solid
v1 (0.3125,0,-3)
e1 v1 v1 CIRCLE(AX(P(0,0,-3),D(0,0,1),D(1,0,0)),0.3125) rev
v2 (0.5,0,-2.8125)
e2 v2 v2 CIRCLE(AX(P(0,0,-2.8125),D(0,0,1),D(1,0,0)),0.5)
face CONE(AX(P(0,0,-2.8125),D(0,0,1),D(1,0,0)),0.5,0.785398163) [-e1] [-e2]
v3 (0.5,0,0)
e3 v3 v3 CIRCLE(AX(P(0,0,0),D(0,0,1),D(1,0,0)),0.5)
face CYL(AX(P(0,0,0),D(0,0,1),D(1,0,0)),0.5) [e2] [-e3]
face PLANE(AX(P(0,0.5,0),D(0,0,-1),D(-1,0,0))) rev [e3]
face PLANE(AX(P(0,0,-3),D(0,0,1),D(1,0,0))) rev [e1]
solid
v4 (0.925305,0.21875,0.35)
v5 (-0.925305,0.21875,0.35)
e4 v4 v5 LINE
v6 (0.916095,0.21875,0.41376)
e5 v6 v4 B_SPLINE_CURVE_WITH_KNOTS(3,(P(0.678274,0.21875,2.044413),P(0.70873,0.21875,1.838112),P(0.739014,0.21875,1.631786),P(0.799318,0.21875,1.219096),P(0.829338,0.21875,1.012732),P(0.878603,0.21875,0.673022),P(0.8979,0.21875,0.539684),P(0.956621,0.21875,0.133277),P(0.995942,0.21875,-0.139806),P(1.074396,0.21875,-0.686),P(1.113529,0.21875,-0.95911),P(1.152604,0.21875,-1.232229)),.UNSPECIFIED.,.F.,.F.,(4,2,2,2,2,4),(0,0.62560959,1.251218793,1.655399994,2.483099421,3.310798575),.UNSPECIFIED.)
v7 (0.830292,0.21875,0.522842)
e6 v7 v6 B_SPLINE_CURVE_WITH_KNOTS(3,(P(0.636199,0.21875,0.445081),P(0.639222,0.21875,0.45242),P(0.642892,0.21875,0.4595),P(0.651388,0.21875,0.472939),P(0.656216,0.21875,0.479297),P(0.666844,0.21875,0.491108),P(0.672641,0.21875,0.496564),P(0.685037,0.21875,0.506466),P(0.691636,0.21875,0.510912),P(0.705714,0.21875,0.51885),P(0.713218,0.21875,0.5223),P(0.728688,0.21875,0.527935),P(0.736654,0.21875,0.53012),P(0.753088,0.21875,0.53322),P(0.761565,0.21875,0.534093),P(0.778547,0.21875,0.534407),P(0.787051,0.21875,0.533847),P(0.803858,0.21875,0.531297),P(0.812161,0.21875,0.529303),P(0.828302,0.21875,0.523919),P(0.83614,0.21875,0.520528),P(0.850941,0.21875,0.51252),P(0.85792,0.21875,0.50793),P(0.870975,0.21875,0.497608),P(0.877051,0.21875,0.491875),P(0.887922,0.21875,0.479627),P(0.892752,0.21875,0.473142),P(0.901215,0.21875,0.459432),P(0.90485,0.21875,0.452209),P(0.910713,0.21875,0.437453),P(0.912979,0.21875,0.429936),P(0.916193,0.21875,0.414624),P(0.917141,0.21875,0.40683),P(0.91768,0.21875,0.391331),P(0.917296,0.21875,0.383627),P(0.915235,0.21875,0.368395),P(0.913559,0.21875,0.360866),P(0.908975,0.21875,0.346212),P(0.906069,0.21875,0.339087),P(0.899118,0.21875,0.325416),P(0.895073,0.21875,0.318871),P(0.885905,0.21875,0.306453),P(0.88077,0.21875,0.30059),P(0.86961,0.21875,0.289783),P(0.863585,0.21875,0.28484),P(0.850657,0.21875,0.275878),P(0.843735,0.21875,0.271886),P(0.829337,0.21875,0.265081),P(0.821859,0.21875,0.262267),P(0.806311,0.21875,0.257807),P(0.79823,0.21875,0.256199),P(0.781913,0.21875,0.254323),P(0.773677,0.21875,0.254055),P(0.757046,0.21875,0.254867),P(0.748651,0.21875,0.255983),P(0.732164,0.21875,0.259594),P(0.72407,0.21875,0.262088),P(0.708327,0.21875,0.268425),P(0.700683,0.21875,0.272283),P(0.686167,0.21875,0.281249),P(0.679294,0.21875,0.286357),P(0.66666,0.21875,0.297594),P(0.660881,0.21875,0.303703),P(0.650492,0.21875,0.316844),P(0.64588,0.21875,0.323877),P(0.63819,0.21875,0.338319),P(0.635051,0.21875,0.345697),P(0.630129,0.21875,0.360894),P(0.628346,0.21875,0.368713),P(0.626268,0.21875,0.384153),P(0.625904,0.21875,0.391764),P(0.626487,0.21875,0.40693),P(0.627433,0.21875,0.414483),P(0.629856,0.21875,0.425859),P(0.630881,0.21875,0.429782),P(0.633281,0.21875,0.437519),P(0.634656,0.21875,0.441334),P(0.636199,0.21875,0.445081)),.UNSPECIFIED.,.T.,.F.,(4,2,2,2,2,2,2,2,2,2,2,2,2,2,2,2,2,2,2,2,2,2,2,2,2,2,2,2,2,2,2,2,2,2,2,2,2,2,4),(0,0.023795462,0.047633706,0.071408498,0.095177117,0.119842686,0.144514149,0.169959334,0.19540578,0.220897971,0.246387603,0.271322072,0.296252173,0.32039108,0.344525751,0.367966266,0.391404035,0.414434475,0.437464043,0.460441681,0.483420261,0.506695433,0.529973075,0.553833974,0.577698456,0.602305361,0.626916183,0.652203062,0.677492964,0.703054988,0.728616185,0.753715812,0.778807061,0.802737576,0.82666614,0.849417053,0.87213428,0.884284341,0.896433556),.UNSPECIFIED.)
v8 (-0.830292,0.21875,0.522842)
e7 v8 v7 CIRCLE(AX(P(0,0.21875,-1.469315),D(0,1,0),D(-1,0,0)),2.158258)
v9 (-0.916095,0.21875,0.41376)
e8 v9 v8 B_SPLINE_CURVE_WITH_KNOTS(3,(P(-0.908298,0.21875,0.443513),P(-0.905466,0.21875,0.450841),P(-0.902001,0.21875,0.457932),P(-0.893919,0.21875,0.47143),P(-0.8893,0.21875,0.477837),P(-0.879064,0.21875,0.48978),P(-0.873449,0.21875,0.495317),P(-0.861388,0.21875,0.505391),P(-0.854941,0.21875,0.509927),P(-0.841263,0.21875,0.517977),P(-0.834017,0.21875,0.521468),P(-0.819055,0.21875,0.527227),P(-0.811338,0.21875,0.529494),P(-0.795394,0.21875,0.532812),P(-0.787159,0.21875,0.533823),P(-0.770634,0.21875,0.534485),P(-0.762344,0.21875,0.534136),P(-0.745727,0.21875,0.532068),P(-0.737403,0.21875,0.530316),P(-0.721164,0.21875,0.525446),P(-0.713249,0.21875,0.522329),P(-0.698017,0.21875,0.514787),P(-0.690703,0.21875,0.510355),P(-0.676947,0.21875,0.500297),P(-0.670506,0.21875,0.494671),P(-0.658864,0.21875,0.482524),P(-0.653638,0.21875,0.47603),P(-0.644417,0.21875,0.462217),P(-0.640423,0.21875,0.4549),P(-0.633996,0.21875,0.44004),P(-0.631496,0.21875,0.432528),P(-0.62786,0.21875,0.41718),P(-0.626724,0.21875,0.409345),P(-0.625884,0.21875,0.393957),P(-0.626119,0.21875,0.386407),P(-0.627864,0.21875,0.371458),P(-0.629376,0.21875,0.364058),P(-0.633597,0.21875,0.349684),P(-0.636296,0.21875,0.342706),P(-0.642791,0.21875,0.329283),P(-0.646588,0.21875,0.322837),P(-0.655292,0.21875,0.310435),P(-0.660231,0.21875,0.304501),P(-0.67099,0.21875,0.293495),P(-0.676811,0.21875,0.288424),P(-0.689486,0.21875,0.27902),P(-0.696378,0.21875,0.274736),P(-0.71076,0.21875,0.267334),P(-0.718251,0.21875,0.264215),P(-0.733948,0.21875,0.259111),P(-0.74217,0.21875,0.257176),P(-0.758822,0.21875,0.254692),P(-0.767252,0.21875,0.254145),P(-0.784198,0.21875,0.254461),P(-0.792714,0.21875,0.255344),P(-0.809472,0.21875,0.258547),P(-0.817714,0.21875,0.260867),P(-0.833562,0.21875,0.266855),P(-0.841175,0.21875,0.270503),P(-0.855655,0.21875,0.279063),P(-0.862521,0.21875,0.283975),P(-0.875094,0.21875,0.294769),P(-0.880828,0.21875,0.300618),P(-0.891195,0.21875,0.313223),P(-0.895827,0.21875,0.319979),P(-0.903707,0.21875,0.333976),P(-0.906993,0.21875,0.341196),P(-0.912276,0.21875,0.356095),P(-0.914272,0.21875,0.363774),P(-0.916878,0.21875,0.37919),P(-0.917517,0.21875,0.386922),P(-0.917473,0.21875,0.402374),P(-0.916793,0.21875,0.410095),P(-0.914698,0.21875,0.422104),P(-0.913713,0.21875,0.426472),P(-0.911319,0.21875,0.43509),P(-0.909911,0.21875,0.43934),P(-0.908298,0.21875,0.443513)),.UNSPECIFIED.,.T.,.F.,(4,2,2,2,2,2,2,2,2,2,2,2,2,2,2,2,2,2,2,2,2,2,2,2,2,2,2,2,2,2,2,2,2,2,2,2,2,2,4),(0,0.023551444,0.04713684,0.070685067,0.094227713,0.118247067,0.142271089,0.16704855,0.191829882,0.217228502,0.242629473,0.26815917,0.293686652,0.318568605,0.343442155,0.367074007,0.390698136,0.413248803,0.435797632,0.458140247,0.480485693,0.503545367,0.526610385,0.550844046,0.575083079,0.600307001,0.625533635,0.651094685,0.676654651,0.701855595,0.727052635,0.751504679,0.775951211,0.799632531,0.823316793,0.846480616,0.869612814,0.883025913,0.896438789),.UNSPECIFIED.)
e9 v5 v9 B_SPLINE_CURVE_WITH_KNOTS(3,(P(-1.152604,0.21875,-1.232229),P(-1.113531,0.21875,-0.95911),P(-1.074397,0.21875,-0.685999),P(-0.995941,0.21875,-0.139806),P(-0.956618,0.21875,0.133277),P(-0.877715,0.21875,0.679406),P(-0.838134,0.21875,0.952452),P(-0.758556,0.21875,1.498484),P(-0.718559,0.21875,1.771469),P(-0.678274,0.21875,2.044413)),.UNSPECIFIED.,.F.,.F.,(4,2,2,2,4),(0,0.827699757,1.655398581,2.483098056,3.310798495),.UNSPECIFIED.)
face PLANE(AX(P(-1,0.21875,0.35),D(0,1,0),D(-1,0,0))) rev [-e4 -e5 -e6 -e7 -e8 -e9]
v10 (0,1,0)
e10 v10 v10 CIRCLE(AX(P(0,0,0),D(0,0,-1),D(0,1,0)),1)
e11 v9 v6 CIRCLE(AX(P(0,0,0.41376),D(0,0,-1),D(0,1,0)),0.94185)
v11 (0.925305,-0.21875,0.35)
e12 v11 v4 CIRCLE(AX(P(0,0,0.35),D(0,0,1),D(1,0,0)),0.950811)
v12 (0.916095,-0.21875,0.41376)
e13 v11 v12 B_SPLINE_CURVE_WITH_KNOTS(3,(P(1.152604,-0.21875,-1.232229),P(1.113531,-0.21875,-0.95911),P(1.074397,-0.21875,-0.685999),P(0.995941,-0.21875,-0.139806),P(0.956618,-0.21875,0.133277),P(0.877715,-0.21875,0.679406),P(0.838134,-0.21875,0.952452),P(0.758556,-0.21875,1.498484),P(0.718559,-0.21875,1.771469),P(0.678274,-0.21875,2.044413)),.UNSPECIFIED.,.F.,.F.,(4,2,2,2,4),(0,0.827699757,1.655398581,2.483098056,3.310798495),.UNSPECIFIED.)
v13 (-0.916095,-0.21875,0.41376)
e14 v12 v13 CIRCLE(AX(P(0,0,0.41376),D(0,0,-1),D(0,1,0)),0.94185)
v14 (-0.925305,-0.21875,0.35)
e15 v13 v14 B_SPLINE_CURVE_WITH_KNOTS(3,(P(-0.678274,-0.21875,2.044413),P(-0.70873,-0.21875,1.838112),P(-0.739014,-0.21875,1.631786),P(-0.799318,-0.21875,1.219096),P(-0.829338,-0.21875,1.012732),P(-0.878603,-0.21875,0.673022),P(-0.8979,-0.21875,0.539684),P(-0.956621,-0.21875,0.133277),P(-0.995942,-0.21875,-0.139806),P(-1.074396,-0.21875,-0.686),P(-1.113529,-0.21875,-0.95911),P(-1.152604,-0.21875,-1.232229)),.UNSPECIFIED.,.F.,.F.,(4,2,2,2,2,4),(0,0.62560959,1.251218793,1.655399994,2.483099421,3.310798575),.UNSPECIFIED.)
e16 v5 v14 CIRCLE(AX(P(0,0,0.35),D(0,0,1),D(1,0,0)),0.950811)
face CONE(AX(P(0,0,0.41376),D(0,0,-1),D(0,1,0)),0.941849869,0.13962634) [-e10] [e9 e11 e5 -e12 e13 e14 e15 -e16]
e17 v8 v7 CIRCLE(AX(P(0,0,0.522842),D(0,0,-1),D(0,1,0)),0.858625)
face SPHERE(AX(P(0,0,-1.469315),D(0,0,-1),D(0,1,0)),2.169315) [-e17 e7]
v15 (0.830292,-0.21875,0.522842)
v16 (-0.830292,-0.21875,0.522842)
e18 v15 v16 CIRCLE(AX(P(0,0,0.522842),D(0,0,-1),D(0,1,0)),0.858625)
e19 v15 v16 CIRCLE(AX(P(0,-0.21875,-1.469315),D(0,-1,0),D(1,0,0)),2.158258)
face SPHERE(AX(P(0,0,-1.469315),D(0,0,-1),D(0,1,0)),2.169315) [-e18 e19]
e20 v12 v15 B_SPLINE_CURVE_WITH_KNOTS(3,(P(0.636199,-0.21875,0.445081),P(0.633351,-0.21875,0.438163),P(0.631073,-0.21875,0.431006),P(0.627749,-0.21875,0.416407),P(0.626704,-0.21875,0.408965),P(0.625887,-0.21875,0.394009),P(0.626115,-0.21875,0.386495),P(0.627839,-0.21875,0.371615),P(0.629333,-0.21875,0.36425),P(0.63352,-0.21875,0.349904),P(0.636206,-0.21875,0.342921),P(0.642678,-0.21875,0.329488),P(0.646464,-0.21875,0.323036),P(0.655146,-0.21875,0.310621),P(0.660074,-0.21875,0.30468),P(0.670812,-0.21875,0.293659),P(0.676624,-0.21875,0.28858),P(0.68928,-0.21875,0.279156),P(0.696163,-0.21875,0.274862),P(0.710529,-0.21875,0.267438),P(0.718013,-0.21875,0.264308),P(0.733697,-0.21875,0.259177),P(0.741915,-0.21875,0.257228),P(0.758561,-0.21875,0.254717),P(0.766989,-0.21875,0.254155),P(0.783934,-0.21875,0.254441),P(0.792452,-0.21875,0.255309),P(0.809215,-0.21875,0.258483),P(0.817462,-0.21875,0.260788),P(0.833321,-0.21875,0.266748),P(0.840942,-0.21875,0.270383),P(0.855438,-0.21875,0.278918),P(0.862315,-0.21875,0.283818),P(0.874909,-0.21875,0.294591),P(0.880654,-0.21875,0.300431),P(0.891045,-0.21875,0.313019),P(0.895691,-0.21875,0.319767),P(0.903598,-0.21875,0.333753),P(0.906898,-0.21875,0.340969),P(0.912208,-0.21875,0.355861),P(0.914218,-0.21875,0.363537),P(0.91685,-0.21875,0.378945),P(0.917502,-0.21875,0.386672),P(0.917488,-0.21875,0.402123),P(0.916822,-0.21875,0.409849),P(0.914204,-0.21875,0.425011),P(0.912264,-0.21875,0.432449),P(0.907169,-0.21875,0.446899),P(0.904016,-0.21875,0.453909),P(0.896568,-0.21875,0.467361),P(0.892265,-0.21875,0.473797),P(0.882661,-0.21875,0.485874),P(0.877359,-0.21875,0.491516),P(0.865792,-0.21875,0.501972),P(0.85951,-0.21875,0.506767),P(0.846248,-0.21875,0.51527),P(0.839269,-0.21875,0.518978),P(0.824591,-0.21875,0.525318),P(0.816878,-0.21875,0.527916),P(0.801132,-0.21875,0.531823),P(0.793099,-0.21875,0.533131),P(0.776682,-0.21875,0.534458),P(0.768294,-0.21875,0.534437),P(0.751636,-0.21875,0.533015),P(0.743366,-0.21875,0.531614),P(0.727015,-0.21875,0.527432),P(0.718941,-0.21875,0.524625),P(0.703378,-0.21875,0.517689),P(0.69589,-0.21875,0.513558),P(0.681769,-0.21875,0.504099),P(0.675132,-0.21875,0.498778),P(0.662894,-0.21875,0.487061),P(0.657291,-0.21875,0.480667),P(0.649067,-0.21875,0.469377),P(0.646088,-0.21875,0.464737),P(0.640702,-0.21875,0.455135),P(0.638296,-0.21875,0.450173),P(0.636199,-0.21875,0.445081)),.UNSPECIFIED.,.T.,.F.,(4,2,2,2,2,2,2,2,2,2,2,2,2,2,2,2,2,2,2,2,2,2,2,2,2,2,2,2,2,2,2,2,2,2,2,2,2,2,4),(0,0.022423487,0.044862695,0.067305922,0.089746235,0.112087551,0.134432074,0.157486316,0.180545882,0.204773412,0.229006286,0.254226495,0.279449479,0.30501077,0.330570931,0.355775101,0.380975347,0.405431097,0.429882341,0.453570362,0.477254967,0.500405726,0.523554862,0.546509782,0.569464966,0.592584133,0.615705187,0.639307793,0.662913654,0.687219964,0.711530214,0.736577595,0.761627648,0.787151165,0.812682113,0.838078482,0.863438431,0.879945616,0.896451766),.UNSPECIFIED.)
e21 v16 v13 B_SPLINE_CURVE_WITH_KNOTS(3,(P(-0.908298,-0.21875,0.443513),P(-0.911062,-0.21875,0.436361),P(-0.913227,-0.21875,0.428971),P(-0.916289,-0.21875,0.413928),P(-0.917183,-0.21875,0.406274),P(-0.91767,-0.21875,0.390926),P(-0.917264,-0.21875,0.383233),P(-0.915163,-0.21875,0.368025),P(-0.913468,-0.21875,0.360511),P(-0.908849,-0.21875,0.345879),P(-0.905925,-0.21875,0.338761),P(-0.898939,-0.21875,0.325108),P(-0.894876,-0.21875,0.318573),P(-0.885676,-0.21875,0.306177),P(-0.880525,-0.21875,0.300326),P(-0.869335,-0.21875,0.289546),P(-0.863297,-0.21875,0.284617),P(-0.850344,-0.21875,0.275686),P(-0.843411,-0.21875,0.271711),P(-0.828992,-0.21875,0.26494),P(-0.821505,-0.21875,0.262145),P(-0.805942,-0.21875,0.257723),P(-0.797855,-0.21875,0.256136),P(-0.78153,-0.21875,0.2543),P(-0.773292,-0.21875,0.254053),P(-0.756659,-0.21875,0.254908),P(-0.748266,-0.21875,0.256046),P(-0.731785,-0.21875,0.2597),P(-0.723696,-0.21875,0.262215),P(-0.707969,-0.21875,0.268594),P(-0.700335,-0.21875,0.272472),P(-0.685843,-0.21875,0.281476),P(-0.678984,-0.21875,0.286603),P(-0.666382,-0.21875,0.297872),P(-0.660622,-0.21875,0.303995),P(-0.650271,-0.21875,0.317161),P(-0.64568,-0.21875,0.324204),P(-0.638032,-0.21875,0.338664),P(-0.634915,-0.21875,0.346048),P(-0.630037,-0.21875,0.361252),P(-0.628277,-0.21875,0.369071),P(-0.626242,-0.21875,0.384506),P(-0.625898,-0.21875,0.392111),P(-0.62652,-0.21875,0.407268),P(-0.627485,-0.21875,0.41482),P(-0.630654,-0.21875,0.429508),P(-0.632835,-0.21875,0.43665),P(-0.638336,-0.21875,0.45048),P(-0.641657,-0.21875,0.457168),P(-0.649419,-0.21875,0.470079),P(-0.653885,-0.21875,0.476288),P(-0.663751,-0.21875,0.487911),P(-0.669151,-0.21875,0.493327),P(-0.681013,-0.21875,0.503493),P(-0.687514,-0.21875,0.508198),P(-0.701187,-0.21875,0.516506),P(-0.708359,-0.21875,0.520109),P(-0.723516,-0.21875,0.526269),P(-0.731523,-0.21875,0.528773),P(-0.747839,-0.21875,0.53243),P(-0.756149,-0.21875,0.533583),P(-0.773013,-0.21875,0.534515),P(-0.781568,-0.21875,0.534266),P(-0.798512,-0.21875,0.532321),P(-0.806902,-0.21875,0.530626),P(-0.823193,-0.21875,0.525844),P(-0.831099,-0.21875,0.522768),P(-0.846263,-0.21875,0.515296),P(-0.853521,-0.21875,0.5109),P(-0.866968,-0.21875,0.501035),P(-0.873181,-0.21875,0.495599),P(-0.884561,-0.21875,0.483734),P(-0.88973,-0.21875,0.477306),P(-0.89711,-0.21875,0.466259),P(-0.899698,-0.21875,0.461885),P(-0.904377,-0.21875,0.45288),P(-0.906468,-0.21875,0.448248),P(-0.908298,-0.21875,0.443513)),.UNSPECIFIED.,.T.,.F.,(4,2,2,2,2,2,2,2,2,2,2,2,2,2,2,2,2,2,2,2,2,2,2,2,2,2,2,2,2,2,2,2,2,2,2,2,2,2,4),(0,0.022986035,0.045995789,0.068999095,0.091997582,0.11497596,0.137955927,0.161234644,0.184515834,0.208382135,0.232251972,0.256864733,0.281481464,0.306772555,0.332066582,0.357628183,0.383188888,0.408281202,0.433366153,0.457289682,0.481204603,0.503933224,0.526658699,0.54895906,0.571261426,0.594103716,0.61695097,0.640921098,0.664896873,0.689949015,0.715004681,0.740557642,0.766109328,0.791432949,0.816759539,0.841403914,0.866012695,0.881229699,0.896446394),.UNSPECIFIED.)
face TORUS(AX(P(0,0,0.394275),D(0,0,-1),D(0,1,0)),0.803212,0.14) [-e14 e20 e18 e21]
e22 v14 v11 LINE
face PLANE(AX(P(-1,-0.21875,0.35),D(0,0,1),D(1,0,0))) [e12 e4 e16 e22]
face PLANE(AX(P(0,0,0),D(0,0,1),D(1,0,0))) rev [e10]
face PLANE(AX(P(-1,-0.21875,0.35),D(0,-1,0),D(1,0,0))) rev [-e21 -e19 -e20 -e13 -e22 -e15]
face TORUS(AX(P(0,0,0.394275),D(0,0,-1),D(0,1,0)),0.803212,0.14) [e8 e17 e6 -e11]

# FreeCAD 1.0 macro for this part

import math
import FreeCAD as App
import Part
import Sketcher
Q = App.Units.Quantity


def edges_at(feature, points):
    """Names of the edges that pass closest to the given points."""
    edges = feature.Shape.Edges
    near = lambda p: min(range(len(edges)), key=lambda i: edges[i].distToShape(Part.Vertex(*p))[0])
    return sorted({f"Edge{near(p) + 1}" for p in points})

doc = App.newDocument("Part")
params = doc.addObject("Spreadsheet::Sheet", "Params")
for row, (alias, value) in enumerate([
    ("sketch1_diameter", "2 mm"),
    ("pad1_length", "0.7 mm"),
    ("sketch2_radius", "0.14 mm"),
    ("sketch2_width", "1.04 mm"),
    ("groove_angle", "360 deg"),
    ("sketch3_width", "2 mm"),
    ("pocket1_length", "0.35 mm"),
    ("sketch4_height", "3 mm"),
    ("sketch4_width", "0.5 mm"),
    ("revolution_angle", "360 deg"),
    ("chamfer_size", "0.1875 mm"),
], start=1):
    params.set(f"A{row}", alias)
    params.set(f"B{row}", "=" + value)
    params.setAlias(f"B{row}", alias)

body = doc.addObject("PartDesign::Body", "Body")

# Sketch on XY plane
sketch1 = doc.addObject("Sketcher::SketchObject", "Sketch")
body.addObject(sketch1)
sketch1.AttachmentSupport = (doc.XY_Plane, [""])
sketch1.MapMode = "FlatFace"
sketch1.addGeometry(Part.Circle(App.Vector(0, 0, 0), App.Vector(0, 0, 1), 1), False)
sketch1.addConstraint([
    Sketcher.Constraint("Coincident", 0, 3, -1, 1),
    Sketcher.Constraint("Diameter", 0, 2.0),
])
sketch1.setExpression("Constraints[1]", "Params.sketch1_diameter")
pad1 = doc.addObject("PartDesign::Pad", "Pad")
body.addObject(pad1)
pad1.Profile = sketch1
pad1.setExpression("Length", "Params.pad1_length")

# Sketch on YZ plane
sketch2 = doc.addObject("Sketcher::SketchObject", "Sketch001")
body.addObject(sketch2)
sketch2.AttachmentSupport = (doc.YZ_Plane, [""])
sketch2.MapMode = "FlatFace"
sketch2.addGeometry([
    Part.LineSegment(App.Vector(1.04, 0, 0), App.Vector(1.04, 0.954, 0)),  # 0
    Part.LineSegment(App.Vector(1.04, 0.954, 0), App.Vector(0, 0.954, 0)),  # 1
    Part.LineSegment(App.Vector(0, 0.954, 0), App.Vector(0, 0.7, 0)),  # 2
    Part.ArcOfCircle(Part.Circle(App.Vector(0, -1.469, 0), App.Vector(0, 0, 1), 2.169), math.radians(67), math.radians(90)),  # 3
    Part.ArcOfCircle(Part.Circle(App.Vector(0.803, 0.394, 0), App.Vector(0, 0, 1), 0.14), math.radians(8), math.radians(67)),  # 4
    Part.LineSegment(App.Vector(0.942, 0.414, 0), App.Vector(1, 0, 0)),  # 5
    Part.LineSegment(App.Vector(1, 0, 0), App.Vector(1.04, 0, 0)),  # 6
], False)
sketch2.addConstraint([
    Sketcher.Constraint("Coincident", 0, 2, 1, 1),
    Sketcher.Constraint("Coincident", 1, 2, 2, 1),
    Sketcher.Constraint("Coincident", 2, 2, 3, 2),
    Sketcher.Constraint("Tangent", 3, 1, 4, 2),
    Sketcher.Constraint("Tangent", 4, 1, 5, 1),
    Sketcher.Constraint("Coincident", 5, 2, 6, 1),
    Sketcher.Constraint("Coincident", 6, 2, 0, 1),
    Sketcher.Constraint("Vertical", 0),
    Sketcher.Constraint("Horizontal", 1),
    Sketcher.Constraint("Vertical", 2),
    Sketcher.Constraint("Horizontal", 6),
    Sketcher.Constraint("PointOnObject", 3, 3, -2),
    Sketcher.Constraint("PointOnObject", 1, 2, -2),
    Sketcher.Constraint("PointOnObject", 5, 2, -1),
    Sketcher.Constraint("Angle", 5, Q("-82 deg")),
    Sketcher.Constraint("Radius", 4, 0.14),
    Sketcher.Constraint("DistanceX", -1, 1, 5, 2, 1.0),
    Sketcher.Constraint("DistanceX", 1, 2, 1, 1, 1.04),
    Sketcher.Constraint("DistanceY", -1, 1, 2, 2, 0.7),
    Sketcher.Constraint("DistanceY", 0, 1, 0, 2, 0.954),
    Sketcher.Constraint("Radius", 3, 2.169315),
])
sketch2.setExpression("Constraints[15]", "Params.sketch2_radius")
sketch2.setExpression("Constraints[17]", "Params.sketch2_width")
groove = doc.addObject("PartDesign::Groove", "Groove")
body.addObject(groove)
groove.Profile = sketch2
groove.ReferenceAxis = (sketch2, ["V_Axis"])
groove.setExpression("Angle", "Params.groove_angle")

# Sketch on XY plane
sketch3 = doc.addObject("Sketcher::SketchObject", "Sketch002")
body.addObject(sketch3)
sketch3.AttachmentSupport = (doc.XY_Plane, [""])
sketch3.MapMode = "FlatFace"
sketch3.AttachmentOffset = App.Placement(App.Vector(0, 0, 0.7), App.Rotation())
sketch3.addGeometry([
    Part.LineSegment(App.Vector(-1, 0.22, 0), App.Vector(-1, -0.22, 0)),
    Part.LineSegment(App.Vector(-1, -0.22, 0), App.Vector(1, -0.22, 0)),
    Part.LineSegment(App.Vector(1, -0.22, 0), App.Vector(1, 0.22, 0)),
    Part.LineSegment(App.Vector(1, 0.22, 0), App.Vector(-1, 0.22, 0)),
], False)
sketch3.addConstraint([
    Sketcher.Constraint("Coincident", 0, 2, 1, 1),
    Sketcher.Constraint("Coincident", 1, 2, 2, 1),
    Sketcher.Constraint("Coincident", 2, 2, 3, 1),
    Sketcher.Constraint("Coincident", 3, 2, 0, 1),
    Sketcher.Constraint("Vertical", 0),
    Sketcher.Constraint("Horizontal", 1),
    Sketcher.Constraint("Vertical", 2),
    Sketcher.Constraint("Horizontal", 3),
    Sketcher.Constraint("Symmetric", 0, 2, 2, 2, -1, 1),
    Sketcher.Constraint("DistanceX", 1, 1, 1, 2, 2.0),
    Sketcher.Constraint("DistanceY", 0, 2, 0, 1, 0.4375),
])
sketch3.setExpression("Constraints[9]", "Params.sketch3_width")
pocket1 = doc.addObject("PartDesign::Pocket", "Pocket")
body.addObject(pocket1)
pocket1.Profile = sketch3
pocket1.setExpression("Length", "Params.pocket1_length")
body2 = doc.addObject("PartDesign::Body", "Body001")

# Sketch on YZ plane
sketch4 = doc.addObject("Sketcher::SketchObject", "Sketch003")
body2.addObject(sketch4)
sketch4.AttachmentSupport = (doc.getObject("YZ_Plane001"), [""])
sketch4.MapMode = "FlatFace"
sketch4.addGeometry([
    Part.LineSegment(App.Vector(0.5, 0, 0), App.Vector(0, 0, 0)),
    Part.LineSegment(App.Vector(0, 0, 0), App.Vector(0, -3, 0)),
    Part.LineSegment(App.Vector(0, -3, 0), App.Vector(0.5, -3, 0)),
    Part.LineSegment(App.Vector(0.5, -3, 0), App.Vector(0.5, 0, 0)),
], False)
sketch4.addConstraint([
    Sketcher.Constraint("Coincident", 0, 2, 1, 1),
    Sketcher.Constraint("Coincident", 1, 2, 2, 1),
    Sketcher.Constraint("Coincident", 2, 2, 3, 1),
    Sketcher.Constraint("Coincident", 3, 2, 0, 1),
    Sketcher.Constraint("Horizontal", 0),
    Sketcher.Constraint("Vertical", 1),
    Sketcher.Constraint("Horizontal", 2),
    Sketcher.Constraint("Vertical", 3),
    Sketcher.Constraint("Coincident", 0, 2, -1, 1),
    Sketcher.Constraint("DistanceY", 1, 2, 1, 1, 3.0),
    Sketcher.Constraint("DistanceX", 0, 2, 0, 1, 0.5),
])
sketch4.setExpression("Constraints[9]", "Params.sketch4_height")
sketch4.setExpression("Constraints[10]", "Params.sketch4_width")
revolution = doc.addObject("PartDesign::Revolution", "Revolution")
body2.addObject(revolution)
revolution.Profile = sketch4
revolution.ReferenceAxis = (sketch4, ["V_Axis"])
revolution.setExpression("Angle", "Params.revolution_angle")
doc.recompute()

chamfer = doc.addObject("PartDesign::Chamfer", "Chamfer")
body2.addObject(chamfer)
chamfer.Base = (revolution, edges_at(revolution, [(-0.5, 0, -3)]))
chamfer.setExpression("Size", "Params.chamfer_size")

doc.recompute()
